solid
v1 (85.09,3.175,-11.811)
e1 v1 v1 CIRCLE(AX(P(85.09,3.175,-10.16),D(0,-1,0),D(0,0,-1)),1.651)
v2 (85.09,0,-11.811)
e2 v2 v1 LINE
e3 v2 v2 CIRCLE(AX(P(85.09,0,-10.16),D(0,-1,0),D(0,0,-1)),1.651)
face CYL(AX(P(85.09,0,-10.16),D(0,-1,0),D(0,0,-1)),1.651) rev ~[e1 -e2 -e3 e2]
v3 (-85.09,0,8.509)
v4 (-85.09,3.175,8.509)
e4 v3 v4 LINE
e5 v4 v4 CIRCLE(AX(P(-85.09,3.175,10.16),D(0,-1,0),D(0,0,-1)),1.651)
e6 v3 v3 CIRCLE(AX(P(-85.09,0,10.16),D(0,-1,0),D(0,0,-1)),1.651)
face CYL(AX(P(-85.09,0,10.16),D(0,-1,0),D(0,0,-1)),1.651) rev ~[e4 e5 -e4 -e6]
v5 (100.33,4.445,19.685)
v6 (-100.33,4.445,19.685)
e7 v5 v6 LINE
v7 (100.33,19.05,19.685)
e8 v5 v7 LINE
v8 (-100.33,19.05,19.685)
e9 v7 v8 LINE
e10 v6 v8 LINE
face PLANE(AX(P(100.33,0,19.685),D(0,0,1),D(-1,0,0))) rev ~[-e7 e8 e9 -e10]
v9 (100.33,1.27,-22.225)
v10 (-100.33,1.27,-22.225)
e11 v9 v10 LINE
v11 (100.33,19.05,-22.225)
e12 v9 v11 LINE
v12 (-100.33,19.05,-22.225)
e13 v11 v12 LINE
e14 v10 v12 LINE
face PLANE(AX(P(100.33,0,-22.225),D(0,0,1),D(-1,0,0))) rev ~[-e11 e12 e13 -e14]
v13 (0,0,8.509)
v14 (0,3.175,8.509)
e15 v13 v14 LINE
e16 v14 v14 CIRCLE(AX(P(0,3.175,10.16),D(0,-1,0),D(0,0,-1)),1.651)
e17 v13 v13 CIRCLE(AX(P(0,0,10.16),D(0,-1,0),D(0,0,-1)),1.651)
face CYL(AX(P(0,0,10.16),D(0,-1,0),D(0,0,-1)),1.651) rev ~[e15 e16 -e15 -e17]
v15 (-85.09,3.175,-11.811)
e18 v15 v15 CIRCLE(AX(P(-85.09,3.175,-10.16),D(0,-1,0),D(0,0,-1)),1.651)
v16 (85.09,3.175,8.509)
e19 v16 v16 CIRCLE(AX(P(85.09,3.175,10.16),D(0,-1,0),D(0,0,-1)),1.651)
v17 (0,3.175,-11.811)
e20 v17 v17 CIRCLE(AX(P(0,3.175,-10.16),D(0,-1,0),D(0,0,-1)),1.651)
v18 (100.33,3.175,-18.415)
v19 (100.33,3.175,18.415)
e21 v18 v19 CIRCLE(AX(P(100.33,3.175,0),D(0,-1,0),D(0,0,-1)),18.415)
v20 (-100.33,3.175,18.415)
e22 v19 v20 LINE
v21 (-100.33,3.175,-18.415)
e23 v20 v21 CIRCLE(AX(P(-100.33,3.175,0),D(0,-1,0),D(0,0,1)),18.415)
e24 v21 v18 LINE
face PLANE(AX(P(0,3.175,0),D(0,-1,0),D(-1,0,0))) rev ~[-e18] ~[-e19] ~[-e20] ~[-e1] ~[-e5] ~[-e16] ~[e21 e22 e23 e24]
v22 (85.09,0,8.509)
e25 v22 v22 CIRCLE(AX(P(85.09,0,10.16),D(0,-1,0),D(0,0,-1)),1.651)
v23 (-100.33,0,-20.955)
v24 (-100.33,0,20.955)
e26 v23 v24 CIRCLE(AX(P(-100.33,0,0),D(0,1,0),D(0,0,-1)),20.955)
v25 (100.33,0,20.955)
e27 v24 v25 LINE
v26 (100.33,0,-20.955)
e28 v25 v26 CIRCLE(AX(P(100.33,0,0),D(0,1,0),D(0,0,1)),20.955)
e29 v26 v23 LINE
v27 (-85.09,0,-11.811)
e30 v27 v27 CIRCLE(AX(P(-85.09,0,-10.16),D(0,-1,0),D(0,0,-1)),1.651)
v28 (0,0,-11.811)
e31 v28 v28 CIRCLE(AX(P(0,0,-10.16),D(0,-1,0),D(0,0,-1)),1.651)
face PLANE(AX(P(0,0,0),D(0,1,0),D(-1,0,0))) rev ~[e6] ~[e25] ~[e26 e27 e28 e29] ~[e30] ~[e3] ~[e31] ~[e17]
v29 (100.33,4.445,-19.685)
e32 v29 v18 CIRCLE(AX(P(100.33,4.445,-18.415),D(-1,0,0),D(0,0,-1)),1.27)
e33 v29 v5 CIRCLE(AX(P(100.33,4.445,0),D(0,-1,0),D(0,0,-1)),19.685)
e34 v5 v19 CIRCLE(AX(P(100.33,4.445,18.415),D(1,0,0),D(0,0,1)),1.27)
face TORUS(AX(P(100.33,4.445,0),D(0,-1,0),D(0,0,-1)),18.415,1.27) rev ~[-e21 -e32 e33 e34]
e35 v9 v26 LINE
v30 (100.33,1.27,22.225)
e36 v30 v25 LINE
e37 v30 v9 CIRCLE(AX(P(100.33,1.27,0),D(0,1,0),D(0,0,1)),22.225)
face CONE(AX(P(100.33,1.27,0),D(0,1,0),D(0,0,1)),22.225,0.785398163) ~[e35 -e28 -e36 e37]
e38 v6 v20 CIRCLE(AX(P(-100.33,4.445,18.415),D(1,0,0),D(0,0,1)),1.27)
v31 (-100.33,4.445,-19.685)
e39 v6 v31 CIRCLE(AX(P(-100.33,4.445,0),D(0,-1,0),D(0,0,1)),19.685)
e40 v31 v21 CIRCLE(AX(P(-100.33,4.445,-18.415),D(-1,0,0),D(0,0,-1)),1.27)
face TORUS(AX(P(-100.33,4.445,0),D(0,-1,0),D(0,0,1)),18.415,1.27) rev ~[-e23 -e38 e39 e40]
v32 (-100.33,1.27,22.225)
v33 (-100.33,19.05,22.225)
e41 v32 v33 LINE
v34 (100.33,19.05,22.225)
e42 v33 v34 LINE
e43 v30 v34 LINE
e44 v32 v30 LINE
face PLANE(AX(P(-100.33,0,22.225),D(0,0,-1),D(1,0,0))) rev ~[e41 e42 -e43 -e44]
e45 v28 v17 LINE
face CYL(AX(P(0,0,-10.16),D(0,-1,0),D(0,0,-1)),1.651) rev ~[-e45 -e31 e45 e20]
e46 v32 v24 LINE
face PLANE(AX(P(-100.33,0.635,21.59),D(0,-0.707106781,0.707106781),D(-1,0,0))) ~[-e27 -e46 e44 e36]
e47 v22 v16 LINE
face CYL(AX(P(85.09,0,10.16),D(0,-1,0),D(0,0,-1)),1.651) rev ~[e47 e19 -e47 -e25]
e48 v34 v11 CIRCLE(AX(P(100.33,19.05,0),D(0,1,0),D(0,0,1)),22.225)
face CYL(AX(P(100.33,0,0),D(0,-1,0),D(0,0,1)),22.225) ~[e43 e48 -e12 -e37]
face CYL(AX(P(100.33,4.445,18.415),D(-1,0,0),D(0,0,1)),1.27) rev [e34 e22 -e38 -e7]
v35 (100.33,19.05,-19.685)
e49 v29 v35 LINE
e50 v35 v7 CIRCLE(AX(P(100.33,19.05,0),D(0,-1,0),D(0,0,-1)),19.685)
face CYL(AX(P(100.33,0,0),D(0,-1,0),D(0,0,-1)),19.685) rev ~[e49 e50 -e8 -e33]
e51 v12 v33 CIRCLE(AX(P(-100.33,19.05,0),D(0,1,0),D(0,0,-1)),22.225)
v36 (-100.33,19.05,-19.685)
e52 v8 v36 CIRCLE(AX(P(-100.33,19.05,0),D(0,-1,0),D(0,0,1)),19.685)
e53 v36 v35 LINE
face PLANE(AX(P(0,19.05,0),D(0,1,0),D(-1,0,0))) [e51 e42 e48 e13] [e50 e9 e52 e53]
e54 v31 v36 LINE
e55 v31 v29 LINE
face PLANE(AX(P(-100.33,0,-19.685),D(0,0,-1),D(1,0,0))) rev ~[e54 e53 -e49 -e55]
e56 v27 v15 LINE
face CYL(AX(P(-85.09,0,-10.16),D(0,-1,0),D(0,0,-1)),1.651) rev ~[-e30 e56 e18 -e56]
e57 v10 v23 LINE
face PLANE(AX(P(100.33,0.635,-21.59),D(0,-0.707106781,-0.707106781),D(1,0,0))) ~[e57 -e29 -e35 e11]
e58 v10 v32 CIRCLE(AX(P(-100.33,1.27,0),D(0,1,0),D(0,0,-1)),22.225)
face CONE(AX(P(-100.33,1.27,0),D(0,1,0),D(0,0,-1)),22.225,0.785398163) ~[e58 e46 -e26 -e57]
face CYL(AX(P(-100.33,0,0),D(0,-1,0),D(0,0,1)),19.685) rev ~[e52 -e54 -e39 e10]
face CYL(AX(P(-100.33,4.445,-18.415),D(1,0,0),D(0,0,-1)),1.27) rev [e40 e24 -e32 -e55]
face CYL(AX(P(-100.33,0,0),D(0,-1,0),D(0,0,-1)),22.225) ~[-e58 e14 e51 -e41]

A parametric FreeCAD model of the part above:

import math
import FreeCAD as App
import Part
import Sketcher
Q = App.Units.Quantity


def edges_at(feature, points):
    """Names of the edges that pass closest to the given points."""
    edges = feature.Shape.Edges
    near = lambda p: min(range(len(edges)), key=lambda i: edges[i].distToShape(Part.Vertex(*p))[0])
    return sorted({f"Edge{near(p) + 1}" for p in points})

doc = App.newDocument("Part")
body = doc.addObject("PartDesign::Body", "Body")

sketch1 = body.newObject("Sketcher::SketchObject", "Sketch")
sketch1.AttachmentSupport = (doc.getObject("XZ_Plane"), [""])
sketch1.MapMode = "FlatFace"
sketch1.addGeometry([
    Part.LineSegment(App.Vector(100, -20, 0), App.Vector(-100, -20, 0)),
    Part.ArcOfCircle(Part.Circle(App.Vector(-100, 0, 0), App.Vector(0, 0, 1), 20), math.radians(90), math.radians(270)),
    Part.LineSegment(App.Vector(-100, 20, 0), App.Vector(100, 20, 0)),
    Part.ArcOfCircle(Part.Circle(App.Vector(100, 0, 0), App.Vector(0, 0, 1), 20), math.radians(-90), math.radians(90)),
], False)
sketch1.addConstraint([
    Sketcher.Constraint("Tangent", 0, 2, 1, 2),
    Sketcher.Constraint("Tangent", 1, 1, 2, 1),
    Sketcher.Constraint("Tangent", 2, 2, 3, 2),
    Sketcher.Constraint("Tangent", 3, 1, 0, 1),
    Sketcher.Constraint("Horizontal", 0),
    Sketcher.Constraint("Horizontal", 2),
    Sketcher.Constraint("Symmetric", 1, 3, 3, 3, -1, 1),
    Sketcher.Constraint("DistanceX", 0, 2, 0, 1, Q("7.9 in")),
    Sketcher.Constraint("Radius", 1, Q("0.775 in")),
])
pad1 = body.newObject("PartDesign::Pad", "Pad")
pad1.Profile = sketch1
pad1.Length = Q("0.125 in")
pad1.Reversed = True

sketch2 = body.newObject("Sketcher::SketchObject", "Sketch001")
sketch2.AttachmentSupport = (doc.getObject("XZ_Plane"), [""])
sketch2.MapMode = "FlatFace"
sketch2.addGeometry([
    Part.LineSegment(App.Vector(100, 22, 0), App.Vector(-100, 22, 0)),
    Part.ArcOfCircle(Part.Circle(App.Vector(-100, 0, 0), App.Vector(0, 0, 1), 22), math.radians(90), math.radians(270)),
    Part.LineSegment(App.Vector(-100, -22, 0), App.Vector(100, -22, 0)),
    Part.ArcOfCircle(Part.Circle(App.Vector(100, 0, 0), App.Vector(0, 0, 1), 22), math.radians(-90), math.radians(90)),
    Part.ArcOfCircle(Part.Circle(App.Vector(100, 0, 0), App.Vector(0, 0, 1), 20), math.radians(-90), math.radians(90)),
    Part.LineSegment(App.Vector(100, -20, 0), App.Vector(-100, -20, 0)),
    Part.ArcOfCircle(Part.Circle(App.Vector(-100, 0, 0), App.Vector(0, 0, 1), 20), math.radians(90), math.radians(270)),
    Part.LineSegment(App.Vector(-100, 20, 0), App.Vector(100, 20, 0)),
], False)
sketch2.addConstraint([
    Sketcher.Constraint("Tangent", 0, 2, 1, 1),
    Sketcher.Constraint("Tangent", 1, 2, 2, 1),
    Sketcher.Constraint("Tangent", 2, 2, 3, 1),
    Sketcher.Constraint("Tangent", 3, 2, 0, 1),
    Sketcher.Constraint("Tangent", 4, 1, 5, 1),
    Sketcher.Constraint("Tangent", 5, 2, 6, 2),
    Sketcher.Constraint("Tangent", 6, 1, 7, 1),
    Sketcher.Constraint("Tangent", 7, 2, 4, 2),
    Sketcher.Constraint("Horizontal", 0),
    Sketcher.Constraint("Horizontal", 2),
    Sketcher.Constraint("Horizontal", 5),
    Sketcher.Constraint("Horizontal", 7),
    Sketcher.Constraint("Coincident", 4, 3, 3, 3),
    Sketcher.Constraint("Symmetric", 1, 3, 3, 3, -1, 1),
    Sketcher.Constraint("Vertical", 6, 3, 0, 2),
    Sketcher.Constraint("DistanceX", 0, 2, 0, 1, Q("7.9 in")),
    Sketcher.Constraint("Radius", 1, Q("0.875 in")),
    Sketcher.Constraint("Radius", 4, Q("0.775 in")),
])
pad2 = body.newObject("PartDesign::Pad", "Pad001")
pad2.Profile = sketch2
pad2.Length = Q("0.75 in")
pad2.Reversed = True

sketch3 = body.newObject("Sketcher::SketchObject", "Sketch002")
sketch3.AttachmentSupport = (doc.getObject("XZ_Plane"), [""])
sketch3.MapMode = "FlatFace"
sketch3.addGeometry([
    Part.Circle(App.Vector(0, 10.2, 0), App.Vector(0, 0, 1), 1.7),
    Part.Circle(App.Vector(-85.1, 10.2, 0), App.Vector(0, 0, 1), 1.7),
    Part.Circle(App.Vector(85.1, 10.2, 0), App.Vector(0, 0, 1), 1.7),
    Part.Circle(App.Vector(85.1, -10.2, 0), App.Vector(0, 0, 1), 1.7),
    Part.Circle(App.Vector(-85.1, -10.2, 0), App.Vector(0, 0, 1), 1.7),
    Part.Circle(App.Vector(0, -10.2, 0), App.Vector(0, 0, 1), 1.7),
], False)
sketch3.addConstraint([
    Sketcher.Constraint("Equal", 0, 1),
    Sketcher.Constraint("Equal", 1, 2),
    Sketcher.Constraint("Equal", 2, 3),
    Sketcher.Constraint("Equal", 3, 4),
    Sketcher.Constraint("Equal", 4, 5),
    Sketcher.Constraint("Symmetric", 1, 3, 3, 3, -1, 1),
    Sketcher.Constraint("Symmetric", 2, 3, 4, 3, -1, 1),
    Sketcher.Constraint("Symmetric", 0, 3, 5, 3, -1, 1),
    Sketcher.Constraint("Symmetric", 1, 3, 2, 3, -2),
    Sketcher.Constraint("PointOnObject", 0, 3, -2),
    Sketcher.Constraint("Horizontal", 0, 3, 1, 3),
    Sketcher.Constraint("Diameter", 0, Q("0.13 in")),
    Sketcher.Constraint("DistanceY", -1, 1, 0, 3, Q("0.4 in")),
    Sketcher.Constraint("DistanceX", 1, 3, 2, 3, Q("6.7 in")),
])
pocket1 = body.newObject("PartDesign::Pocket", "Pocket")
pocket1.Profile = sketch3
pocket1.Type = "ThroughAll"
doc.recompute()

fillet = body.newObject("PartDesign::Fillet", "Fillet")
fillet.Base = (pocket1, edges_at(pocket1, [
    (120.015, 3.175, 0),
    (0, 3.175, -19.685),
    (-120.015, 3.175, 0),
    (0, 3.175, 19.685),
]))
fillet.Radius = Q("0.05 in")
doc.recompute()

chamfer = body.newObject("PartDesign::Chamfer", "Chamfer")
chamfer.Base = (fillet, edges_at(fillet, [
    (-122.555, 0, 0),
    (0, 0, -22.225),
    (122.555, 0, 0),
    (0, 0, 22.225),
]))
chamfer.Size = Q("0.05 in")

doc.recompute()
